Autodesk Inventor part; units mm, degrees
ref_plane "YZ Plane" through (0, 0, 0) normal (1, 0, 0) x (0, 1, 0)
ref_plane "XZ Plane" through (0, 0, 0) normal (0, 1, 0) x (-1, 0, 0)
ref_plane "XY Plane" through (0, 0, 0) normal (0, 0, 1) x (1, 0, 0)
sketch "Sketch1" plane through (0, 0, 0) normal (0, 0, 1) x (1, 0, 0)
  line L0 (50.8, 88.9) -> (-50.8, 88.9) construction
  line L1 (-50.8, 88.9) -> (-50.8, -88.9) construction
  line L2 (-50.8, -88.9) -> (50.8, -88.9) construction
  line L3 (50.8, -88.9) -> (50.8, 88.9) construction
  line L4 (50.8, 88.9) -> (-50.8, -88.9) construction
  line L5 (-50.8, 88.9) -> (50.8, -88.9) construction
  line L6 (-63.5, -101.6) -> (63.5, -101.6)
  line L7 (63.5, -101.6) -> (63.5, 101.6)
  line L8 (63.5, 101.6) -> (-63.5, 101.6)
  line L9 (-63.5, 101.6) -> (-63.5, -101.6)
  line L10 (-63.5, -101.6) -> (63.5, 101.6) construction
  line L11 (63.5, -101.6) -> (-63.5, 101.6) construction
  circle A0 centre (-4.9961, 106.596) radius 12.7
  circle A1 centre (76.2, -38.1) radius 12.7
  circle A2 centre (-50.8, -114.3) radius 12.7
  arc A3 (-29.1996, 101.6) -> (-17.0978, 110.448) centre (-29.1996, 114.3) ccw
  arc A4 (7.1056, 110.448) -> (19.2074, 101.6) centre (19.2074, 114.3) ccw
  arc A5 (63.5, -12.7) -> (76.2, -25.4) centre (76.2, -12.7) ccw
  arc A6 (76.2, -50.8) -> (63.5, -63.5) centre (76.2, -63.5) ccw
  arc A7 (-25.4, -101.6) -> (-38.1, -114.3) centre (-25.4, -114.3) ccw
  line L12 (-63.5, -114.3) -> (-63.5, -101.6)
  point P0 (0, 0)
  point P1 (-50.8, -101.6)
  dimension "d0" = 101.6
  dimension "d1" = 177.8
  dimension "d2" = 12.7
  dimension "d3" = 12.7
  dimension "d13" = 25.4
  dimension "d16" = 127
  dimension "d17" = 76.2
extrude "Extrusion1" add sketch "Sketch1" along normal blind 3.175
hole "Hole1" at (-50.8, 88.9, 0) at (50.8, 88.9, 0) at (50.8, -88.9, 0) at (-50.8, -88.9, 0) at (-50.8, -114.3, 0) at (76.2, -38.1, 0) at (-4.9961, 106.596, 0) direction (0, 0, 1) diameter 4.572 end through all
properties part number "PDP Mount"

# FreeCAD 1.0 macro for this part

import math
import FreeCAD as App
import Part
import Sketcher

V = App.Vector
Q = App.Units.Quantity

doc = App.newDocument("Part")
body = doc.addObject("PartDesign::Body", "Body")

sketch1 = body.newObject("Sketcher::SketchObject", "Sketch")
sketch1.AttachmentSupport = (doc.getObject("XY_Plane"), [""])
sketch1.MapMode = "FlatFace"
sketch1.addGeometry([
    Part.LineSegment(V(-64, 102, 0), V(-64, -114, 0)),
    Part.ArcOfCircle(Part.Circle(V(-51, -114, 0), V(0, 0, 1), 13), math.radians(180), math.radians(360)),
    Part.ArcOfCircle(Part.Circle(V(-25, -114, 0), V(0, 0, 1), 13), math.radians(90), math.radians(180)),
    Part.LineSegment(V(-25, -102, 0), V(64, -102, 0)),
    Part.LineSegment(V(64, -102, 0), V(64, -64, 0)),
    Part.ArcOfCircle(Part.Circle(V(76, -64, 0), V(0, 0, 1), 13), math.radians(90), math.radians(180)),
    Part.ArcOfCircle(Part.Circle(V(76, -38, 0), V(0, 0, 1), 13), math.radians(-90), math.radians(90)),
    Part.ArcOfCircle(Part.Circle(V(76, -13, 0), V(0, 0, 1), 13), math.radians(180), math.radians(270)),
    Part.LineSegment(V(64, -13, 0), V(64, 102, 0)),
    Part.LineSegment(V(64, 102, 0), V(19, 102, 0)),
    Part.ArcOfCircle(Part.Circle(V(19, 114, 0), V(0, 0, 1), 13), math.radians(-162), math.radians(-90)),
    Part.ArcOfCircle(Part.Circle(V(-5, 107, 0), V(0, 0, 1), 13), math.radians(18), math.radians(162)),
    Part.ArcOfCircle(Part.Circle(V(-29, 114, 0), V(0, 0, 1), 13), math.radians(-90), math.radians(-18)),
    Part.LineSegment(V(-29, 102, 0), V(-64, 102, 0)),
], False)
sketch1.addConstraint([
    Sketcher.Constraint("Tangent", 0, 2, 1, 1),
    Sketcher.Constraint("Tangent", 1, 2, 2, 2),
    Sketcher.Constraint("Tangent", 2, 1, 3, 1),
    Sketcher.Constraint("Coincident", 3, 2, 4, 1),
    Sketcher.Constraint("Tangent", 4, 2, 5, 2),
    Sketcher.Constraint("Tangent", 5, 1, 6, 1),
    Sketcher.Constraint("Tangent", 6, 2, 7, 2),
    Sketcher.Constraint("Tangent", 7, 1, 8, 1),
    Sketcher.Constraint("Coincident", 8, 2, 9, 1),
    Sketcher.Constraint("Tangent", 9, 2, 10, 2),
    Sketcher.Constraint("Tangent", 10, 1, 11, 1),
    Sketcher.Constraint("Tangent", 11, 2, 12, 2),
    Sketcher.Constraint("Tangent", 12, 1, 13, 1),
    Sketcher.Constraint("Coincident", 13, 2, 0, 1),
    Sketcher.Constraint("Vertical", 0),
    Sketcher.Constraint("Horizontal", 3),
    Sketcher.Constraint("Vertical", 4),
    Sketcher.Constraint("Vertical", 8),
    Sketcher.Constraint("Horizontal", 9),
    Sketcher.Constraint("Horizontal", 13),
    Sketcher.Constraint("Equal", 1, 2),
    Sketcher.Constraint("Equal", 2, 5),
    Sketcher.Constraint("Equal", 5, 6),
    Sketcher.Constraint("Equal", 6, 7),
    Sketcher.Constraint("Equal", 7, 10),
    Sketcher.Constraint("Equal", 10, 11),
    Sketcher.Constraint("Equal", 11, 12),
    Sketcher.Constraint("Symmetric", 3, 2, 13, 2, -1, 1),
    Sketcher.Constraint("Symmetric", 8, 2, 13, 2, -2),
    Sketcher.Constraint("Horizontal", 1, 3, 2, 3),
    Sketcher.Constraint("Vertical", 5, 3, 6, 3),
    Sketcher.Constraint("Radius", 1, Q("0.5 in")),
    Sketcher.Constraint("DistanceX", 2, 3, -1, 1, Q("1 in")),
    Sketcher.Constraint("DistanceY", 2, 1, -1, 1, Q("4 in")),
    Sketcher.Constraint("DistanceY", 6, 2, -1, 1, Q("1 in")),
    Sketcher.Constraint("DistanceX", 9, 2, 9, 1, Q("1.7438 in")),
    Sketcher.Constraint("DistanceX", 13, 2, 13, 1, Q("1.3504 in")),
])
pad1 = body.newObject("PartDesign::Pad", "Pad")
pad1.Profile = sketch1
pad1.Length = Q("0.125 in")

sketch2 = body.newObject("Sketcher::SketchObject", "Sketch001")
sketch2.AttachmentSupport = (doc.getObject("XY_Plane"), [""])
sketch2.MapMode = "FlatFace"
sketch2.addGeometry([
    Part.Circle(V(-50.8, 88.9, 0), V(0, 0, 1), 2.3),
    Part.Circle(V(50.8, 88.9, 0), V(0, 0, 1), 2.3),
    Part.Circle(V(50.8, -88.9, 0), V(0, 0, 1), 2.3),
    Part.Circle(V(-50.8, -88.9, 0), V(0, 0, 1), 2.3),
    Part.Circle(V(-50.8, -114.3, 0), V(0, 0, 1), 2.3),
    Part.Circle(V(76.2, -38.1, 0), V(0, 0, 1), 2.3),
    Part.Circle(V(-5, 106.6, 0), V(0, 0, 1), 2.3),
], False)
sketch2.addConstraint([
    Sketcher.Constraint("Equal", 0, 1),
    Sketcher.Constraint("Equal", 1, 2),
    Sketcher.Constraint("Equal", 2, 3),
    Sketcher.Constraint("Equal", 3, 4),
    Sketcher.Constraint("Equal", 4, 5),
    Sketcher.Constraint("Equal", 5, 6),
    Sketcher.Constraint("Symmetric", 0, 3, 2, 3, -1, 1),
    Sketcher.Constraint("Symmetric", 1, 3, 3, 3, -1, 1),
    Sketcher.Constraint("Symmetric", 0, 3, 1, 3, -2),
    Sketcher.Constraint("Vertical", 3, 3, 4, 3),
    Sketcher.Constraint("Diameter", 0, Q("0.18 in")),
    Sketcher.Constraint("DistanceX", 0, 3, -1, 1, Q("2 in")),
    Sketcher.Constraint("DistanceX", -1, 1, 5, 3, Q("3 in")),
    Sketcher.Constraint("DistanceY", 2, 3, 1, 3, Q("7 in")),
    Sketcher.Constraint("DistanceY", 4, 3, 3, 3, Q("1 in")),
    Sketcher.Constraint("DistanceY", 2, 3, 5, 3, Q("2 in")),
    Sketcher.Constraint("DistanceX", 6, 3, -1, 1, Q("0.1967 in")),
    Sketcher.Constraint("DistanceY", -1, 1, 6, 3, Q("4.1967 in")),
])
doc.recompute()
hole = body.newObject("PartDesign::Hole", "Hole")
hole.Profile = sketch2
hole.ThreadType = "None"
hole.Diameter = Q("0.18 in")
hole.DepthType = "ThroughAll"
hole.Reversed = True

doc.recompute()
